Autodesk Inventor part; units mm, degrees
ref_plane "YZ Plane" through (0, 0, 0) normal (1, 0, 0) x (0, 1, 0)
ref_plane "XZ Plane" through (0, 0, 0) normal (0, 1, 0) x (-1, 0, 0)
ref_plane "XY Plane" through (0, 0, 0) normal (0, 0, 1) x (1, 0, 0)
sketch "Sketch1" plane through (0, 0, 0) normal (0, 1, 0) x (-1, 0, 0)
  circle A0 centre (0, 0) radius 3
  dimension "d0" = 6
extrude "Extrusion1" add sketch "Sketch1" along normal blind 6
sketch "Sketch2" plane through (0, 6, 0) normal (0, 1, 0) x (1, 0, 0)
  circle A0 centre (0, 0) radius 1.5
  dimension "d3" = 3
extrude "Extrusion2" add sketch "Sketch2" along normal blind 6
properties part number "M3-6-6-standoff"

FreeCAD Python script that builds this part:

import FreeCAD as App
import Part
import Sketcher
from FreeCAD import Vector
Q = App.Units.Quantity

doc = App.newDocument("Part")
body = doc.addObject("PartDesign::Body", "Body")

sketch1 = doc.addObject("Sketcher::SketchObject", "Sketch")
body.addObject(sketch1)
sketch1.AttachmentSupport = (doc.XZ_Plane, [""])
sketch1.MapMode = "FlatFace"
sketch1.addGeometry(Part.Circle(Vector(0, 0, 0), Vector(0, 0, 1), 3), False)
sketch1.addConstraint(Sketcher.Constraint("Coincident", 0, 3, -1, 1))
sketch1.addConstraint(Sketcher.Constraint("Diameter", 0, Q("6 mm")))
pad1 = doc.addObject("PartDesign::Pad", "Pad")
body.addObject(pad1)
pad1.Profile = sketch1
pad1.Length = 6
pad1.Reversed = True

sketch2 = doc.addObject("Sketcher::SketchObject", "Sketch001")
body.addObject(sketch2)
sketch2.AttachmentSupport = (doc.XZ_Plane, [""])
sketch2.MapMode = "FlatFace"
sketch2.AttachmentOffset = App.Placement(Vector(0, 0, -6), App.Rotation())
sketch2.addGeometry(Part.Circle(Vector(0, 0, 0), Vector(0, 0, 1), 1.5), False)
sketch2.addConstraint(Sketcher.Constraint("Coincident", 0, 3, -1, 1))
sketch2.addConstraint(Sketcher.Constraint("Diameter", 0, Q("3 mm")))
pad2 = doc.addObject("PartDesign::Pad", "Pad001")
body.addObject(pad2)
pad2.Profile = sketch2
pad2.Length = 6
pad2.Reversed = True

doc.recompute()
